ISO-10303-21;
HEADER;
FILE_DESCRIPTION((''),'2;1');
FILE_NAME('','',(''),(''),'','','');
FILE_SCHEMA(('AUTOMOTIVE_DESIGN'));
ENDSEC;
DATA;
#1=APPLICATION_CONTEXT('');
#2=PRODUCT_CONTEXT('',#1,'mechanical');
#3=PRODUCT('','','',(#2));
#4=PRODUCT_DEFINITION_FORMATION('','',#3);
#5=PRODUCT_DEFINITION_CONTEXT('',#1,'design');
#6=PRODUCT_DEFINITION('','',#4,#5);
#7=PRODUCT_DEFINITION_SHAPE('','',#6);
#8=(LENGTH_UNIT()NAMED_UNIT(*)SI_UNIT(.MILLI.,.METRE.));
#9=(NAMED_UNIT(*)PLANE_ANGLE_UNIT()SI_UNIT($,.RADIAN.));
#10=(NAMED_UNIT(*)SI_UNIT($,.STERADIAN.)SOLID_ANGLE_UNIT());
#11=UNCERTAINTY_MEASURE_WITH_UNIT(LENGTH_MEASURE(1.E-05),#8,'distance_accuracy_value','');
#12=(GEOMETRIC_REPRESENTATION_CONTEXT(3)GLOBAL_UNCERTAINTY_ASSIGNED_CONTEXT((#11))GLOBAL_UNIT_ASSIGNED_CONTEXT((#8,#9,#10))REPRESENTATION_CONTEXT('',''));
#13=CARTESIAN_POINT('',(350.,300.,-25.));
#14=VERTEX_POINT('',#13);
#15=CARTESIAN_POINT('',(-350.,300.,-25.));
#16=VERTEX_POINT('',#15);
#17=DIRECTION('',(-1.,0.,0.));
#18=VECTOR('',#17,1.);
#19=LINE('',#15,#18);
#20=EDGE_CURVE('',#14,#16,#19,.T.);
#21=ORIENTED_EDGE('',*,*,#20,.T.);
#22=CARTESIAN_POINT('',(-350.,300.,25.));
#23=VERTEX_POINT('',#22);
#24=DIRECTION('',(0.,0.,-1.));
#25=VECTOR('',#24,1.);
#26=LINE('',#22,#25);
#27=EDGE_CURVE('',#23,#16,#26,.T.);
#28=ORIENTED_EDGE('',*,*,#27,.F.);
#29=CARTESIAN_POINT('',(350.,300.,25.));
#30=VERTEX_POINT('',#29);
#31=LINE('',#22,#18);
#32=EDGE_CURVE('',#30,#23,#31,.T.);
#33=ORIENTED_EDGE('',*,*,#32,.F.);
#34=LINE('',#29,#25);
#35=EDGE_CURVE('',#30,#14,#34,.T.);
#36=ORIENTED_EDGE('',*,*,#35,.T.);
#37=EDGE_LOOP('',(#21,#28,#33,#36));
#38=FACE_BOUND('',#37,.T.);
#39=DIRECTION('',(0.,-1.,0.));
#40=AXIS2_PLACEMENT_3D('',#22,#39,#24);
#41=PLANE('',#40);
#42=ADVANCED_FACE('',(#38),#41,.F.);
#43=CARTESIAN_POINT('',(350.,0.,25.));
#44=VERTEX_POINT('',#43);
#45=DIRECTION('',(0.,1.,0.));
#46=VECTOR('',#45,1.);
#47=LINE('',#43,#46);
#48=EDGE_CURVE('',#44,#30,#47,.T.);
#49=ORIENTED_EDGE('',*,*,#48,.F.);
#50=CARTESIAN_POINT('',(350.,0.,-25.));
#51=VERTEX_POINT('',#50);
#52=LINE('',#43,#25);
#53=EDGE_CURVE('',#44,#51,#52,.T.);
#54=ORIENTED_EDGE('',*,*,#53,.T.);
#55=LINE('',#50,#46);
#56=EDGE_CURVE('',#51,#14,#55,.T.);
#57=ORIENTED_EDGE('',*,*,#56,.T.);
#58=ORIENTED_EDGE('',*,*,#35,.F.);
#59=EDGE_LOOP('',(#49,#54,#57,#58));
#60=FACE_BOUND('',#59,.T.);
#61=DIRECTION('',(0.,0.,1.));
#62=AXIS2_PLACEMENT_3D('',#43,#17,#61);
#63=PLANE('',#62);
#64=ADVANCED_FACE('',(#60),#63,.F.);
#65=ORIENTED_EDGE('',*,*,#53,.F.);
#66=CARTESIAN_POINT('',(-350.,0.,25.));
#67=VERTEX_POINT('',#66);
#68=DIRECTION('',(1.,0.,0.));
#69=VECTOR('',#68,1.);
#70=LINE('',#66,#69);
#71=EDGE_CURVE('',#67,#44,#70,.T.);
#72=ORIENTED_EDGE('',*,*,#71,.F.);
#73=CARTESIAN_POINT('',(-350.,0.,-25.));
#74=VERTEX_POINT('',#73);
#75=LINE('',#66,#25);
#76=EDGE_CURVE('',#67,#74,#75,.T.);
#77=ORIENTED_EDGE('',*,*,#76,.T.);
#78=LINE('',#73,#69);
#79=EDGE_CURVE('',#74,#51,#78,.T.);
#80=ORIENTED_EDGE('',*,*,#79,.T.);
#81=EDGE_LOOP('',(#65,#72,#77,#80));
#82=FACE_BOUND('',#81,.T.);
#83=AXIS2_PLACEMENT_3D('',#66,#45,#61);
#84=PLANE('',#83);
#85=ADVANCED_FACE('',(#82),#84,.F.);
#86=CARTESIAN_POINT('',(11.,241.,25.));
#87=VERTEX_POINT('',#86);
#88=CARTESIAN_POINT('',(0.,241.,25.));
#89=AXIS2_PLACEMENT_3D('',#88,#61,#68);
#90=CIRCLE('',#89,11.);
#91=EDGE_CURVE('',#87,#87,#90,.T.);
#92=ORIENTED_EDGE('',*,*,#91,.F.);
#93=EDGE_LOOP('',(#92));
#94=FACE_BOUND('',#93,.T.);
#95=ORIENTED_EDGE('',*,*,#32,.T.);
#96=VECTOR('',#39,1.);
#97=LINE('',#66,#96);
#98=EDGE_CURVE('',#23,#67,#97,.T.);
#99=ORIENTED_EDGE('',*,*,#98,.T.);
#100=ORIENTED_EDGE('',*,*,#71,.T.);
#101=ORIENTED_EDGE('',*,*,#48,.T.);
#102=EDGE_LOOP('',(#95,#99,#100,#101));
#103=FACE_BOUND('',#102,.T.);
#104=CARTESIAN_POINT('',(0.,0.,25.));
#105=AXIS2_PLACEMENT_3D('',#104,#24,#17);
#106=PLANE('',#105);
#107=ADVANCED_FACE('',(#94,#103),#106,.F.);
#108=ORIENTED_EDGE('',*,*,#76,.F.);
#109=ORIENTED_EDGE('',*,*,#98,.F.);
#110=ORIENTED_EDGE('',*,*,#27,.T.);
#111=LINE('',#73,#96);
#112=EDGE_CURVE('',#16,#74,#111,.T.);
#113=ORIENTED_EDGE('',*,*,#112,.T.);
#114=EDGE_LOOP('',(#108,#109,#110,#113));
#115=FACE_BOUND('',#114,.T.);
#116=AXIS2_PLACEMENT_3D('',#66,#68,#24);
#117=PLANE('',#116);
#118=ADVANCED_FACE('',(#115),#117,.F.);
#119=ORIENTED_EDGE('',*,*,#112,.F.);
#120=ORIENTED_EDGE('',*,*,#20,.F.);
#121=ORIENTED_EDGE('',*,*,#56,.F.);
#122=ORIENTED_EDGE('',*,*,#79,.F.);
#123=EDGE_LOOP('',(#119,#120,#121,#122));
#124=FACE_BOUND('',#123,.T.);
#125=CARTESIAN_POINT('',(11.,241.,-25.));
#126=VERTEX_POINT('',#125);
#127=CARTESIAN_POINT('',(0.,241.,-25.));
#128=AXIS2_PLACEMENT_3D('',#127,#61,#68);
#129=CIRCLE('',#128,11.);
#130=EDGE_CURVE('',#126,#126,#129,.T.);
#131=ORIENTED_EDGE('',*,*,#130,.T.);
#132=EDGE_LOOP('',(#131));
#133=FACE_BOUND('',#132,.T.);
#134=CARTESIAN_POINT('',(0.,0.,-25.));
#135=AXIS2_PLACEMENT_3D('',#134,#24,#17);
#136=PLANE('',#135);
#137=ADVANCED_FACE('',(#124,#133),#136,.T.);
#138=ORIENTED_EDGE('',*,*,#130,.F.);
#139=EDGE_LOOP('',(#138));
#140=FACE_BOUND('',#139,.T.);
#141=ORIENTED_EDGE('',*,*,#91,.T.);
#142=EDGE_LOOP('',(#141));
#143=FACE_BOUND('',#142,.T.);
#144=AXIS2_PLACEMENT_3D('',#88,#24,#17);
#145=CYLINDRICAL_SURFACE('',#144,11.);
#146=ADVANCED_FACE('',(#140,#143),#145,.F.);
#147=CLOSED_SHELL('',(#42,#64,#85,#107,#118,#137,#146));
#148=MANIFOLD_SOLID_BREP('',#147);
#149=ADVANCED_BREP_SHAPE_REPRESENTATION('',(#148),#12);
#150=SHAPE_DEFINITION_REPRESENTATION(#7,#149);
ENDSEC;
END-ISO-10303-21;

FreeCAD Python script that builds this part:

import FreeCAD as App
import Part
import Sketcher


def add_polygon(sketch, points):
    """Adds a closed chain of lines whose ends are joined by coincident constraints."""
    first, n = sketch.GeometryCount, len(points)
    for a, b in zip(points, points[1:] + points[:1]):
        sketch.addGeometry(Part.LineSegment(App.Vector(*a, 0), App.Vector(*b, 0)), False)
    for i in range(n):
        sketch.addConstraint(Sketcher.Constraint("Coincident", first + i, 2, first + (i + 1) % n, 1))

doc = App.newDocument("Part")
params = doc.addObject("Spreadsheet::Sheet", "Params")
for row, (alias, value) in enumerate([
    ("sketch1_width", "700 mm"),
    ("sketch1_height", "300 mm"),
    ("pad1_length", "50 mm"),
    ("sketch2_diameter", "22 mm"),
], start=1):
    params.set(f"A{row}", alias)
    params.set(f"B{row}", "=" + value)
    params.setAlias(f"B{row}", alias)

body = doc.addObject("PartDesign::Body", "Body")

# Sketch on XY plane
sketch1 = body.newObject("Sketcher::SketchObject", "Sketch")
sketch1.AttachmentSupport = (doc.getObject("XY_Plane"), [""])
sketch1.MapMode = "FlatFace"
add_polygon(sketch1, [(-350, 300), (-350, 0), (350, 0), (350, 300)])  # lines 0-3
sketch1.addConstraint([
    Sketcher.Constraint("Vertical", 0),
    Sketcher.Constraint("Horizontal", 1),
    Sketcher.Constraint("Vertical", 2),
    Sketcher.Constraint("Horizontal", 3),
    Sketcher.Constraint("Symmetric", 0, 2, 1, 2, -1, 1),
    Sketcher.Constraint("DistanceX", 1, 1, 1, 2, 700.0),
    Sketcher.Constraint("DistanceY", 0, 2, 0, 1, 300.0),
])
sketch1.setExpression("Constraints[9]", "Params.sketch1_width")
sketch1.setExpression("Constraints[10]", "Params.sketch1_height")
pad1 = body.newObject("PartDesign::Pad", "Pad")
pad1.Profile = sketch1
pad1.setExpression("Length", "Params.pad1_length")
pad1.Midplane = True

# Sketch on XY plane
sketch2 = body.newObject("Sketcher::SketchObject", "Sketch001")
sketch2.AttachmentSupport = (doc.getObject("XY_Plane"), [""])
sketch2.MapMode = "FlatFace"
sketch2.addGeometry(Part.Circle(App.Vector(0, 241, 0), App.Vector(0, 0, 1), 11), False)
sketch2.addConstraint([
    Sketcher.Constraint("PointOnObject", 0, 3, -2),
    Sketcher.Constraint("Diameter", 0, 22.0),
    Sketcher.Constraint("DistanceY", -1, 1, 0, 3, 241.0),
])
sketch2.setExpression("Constraints[1]", "Params.sketch2_diameter")
pocket1 = body.newObject("PartDesign::Pocket", "Pocket")
pocket1.Profile = sketch2
pocket1.Type = "ThroughAll"
pocket1.Midplane = True

doc.recompute()
